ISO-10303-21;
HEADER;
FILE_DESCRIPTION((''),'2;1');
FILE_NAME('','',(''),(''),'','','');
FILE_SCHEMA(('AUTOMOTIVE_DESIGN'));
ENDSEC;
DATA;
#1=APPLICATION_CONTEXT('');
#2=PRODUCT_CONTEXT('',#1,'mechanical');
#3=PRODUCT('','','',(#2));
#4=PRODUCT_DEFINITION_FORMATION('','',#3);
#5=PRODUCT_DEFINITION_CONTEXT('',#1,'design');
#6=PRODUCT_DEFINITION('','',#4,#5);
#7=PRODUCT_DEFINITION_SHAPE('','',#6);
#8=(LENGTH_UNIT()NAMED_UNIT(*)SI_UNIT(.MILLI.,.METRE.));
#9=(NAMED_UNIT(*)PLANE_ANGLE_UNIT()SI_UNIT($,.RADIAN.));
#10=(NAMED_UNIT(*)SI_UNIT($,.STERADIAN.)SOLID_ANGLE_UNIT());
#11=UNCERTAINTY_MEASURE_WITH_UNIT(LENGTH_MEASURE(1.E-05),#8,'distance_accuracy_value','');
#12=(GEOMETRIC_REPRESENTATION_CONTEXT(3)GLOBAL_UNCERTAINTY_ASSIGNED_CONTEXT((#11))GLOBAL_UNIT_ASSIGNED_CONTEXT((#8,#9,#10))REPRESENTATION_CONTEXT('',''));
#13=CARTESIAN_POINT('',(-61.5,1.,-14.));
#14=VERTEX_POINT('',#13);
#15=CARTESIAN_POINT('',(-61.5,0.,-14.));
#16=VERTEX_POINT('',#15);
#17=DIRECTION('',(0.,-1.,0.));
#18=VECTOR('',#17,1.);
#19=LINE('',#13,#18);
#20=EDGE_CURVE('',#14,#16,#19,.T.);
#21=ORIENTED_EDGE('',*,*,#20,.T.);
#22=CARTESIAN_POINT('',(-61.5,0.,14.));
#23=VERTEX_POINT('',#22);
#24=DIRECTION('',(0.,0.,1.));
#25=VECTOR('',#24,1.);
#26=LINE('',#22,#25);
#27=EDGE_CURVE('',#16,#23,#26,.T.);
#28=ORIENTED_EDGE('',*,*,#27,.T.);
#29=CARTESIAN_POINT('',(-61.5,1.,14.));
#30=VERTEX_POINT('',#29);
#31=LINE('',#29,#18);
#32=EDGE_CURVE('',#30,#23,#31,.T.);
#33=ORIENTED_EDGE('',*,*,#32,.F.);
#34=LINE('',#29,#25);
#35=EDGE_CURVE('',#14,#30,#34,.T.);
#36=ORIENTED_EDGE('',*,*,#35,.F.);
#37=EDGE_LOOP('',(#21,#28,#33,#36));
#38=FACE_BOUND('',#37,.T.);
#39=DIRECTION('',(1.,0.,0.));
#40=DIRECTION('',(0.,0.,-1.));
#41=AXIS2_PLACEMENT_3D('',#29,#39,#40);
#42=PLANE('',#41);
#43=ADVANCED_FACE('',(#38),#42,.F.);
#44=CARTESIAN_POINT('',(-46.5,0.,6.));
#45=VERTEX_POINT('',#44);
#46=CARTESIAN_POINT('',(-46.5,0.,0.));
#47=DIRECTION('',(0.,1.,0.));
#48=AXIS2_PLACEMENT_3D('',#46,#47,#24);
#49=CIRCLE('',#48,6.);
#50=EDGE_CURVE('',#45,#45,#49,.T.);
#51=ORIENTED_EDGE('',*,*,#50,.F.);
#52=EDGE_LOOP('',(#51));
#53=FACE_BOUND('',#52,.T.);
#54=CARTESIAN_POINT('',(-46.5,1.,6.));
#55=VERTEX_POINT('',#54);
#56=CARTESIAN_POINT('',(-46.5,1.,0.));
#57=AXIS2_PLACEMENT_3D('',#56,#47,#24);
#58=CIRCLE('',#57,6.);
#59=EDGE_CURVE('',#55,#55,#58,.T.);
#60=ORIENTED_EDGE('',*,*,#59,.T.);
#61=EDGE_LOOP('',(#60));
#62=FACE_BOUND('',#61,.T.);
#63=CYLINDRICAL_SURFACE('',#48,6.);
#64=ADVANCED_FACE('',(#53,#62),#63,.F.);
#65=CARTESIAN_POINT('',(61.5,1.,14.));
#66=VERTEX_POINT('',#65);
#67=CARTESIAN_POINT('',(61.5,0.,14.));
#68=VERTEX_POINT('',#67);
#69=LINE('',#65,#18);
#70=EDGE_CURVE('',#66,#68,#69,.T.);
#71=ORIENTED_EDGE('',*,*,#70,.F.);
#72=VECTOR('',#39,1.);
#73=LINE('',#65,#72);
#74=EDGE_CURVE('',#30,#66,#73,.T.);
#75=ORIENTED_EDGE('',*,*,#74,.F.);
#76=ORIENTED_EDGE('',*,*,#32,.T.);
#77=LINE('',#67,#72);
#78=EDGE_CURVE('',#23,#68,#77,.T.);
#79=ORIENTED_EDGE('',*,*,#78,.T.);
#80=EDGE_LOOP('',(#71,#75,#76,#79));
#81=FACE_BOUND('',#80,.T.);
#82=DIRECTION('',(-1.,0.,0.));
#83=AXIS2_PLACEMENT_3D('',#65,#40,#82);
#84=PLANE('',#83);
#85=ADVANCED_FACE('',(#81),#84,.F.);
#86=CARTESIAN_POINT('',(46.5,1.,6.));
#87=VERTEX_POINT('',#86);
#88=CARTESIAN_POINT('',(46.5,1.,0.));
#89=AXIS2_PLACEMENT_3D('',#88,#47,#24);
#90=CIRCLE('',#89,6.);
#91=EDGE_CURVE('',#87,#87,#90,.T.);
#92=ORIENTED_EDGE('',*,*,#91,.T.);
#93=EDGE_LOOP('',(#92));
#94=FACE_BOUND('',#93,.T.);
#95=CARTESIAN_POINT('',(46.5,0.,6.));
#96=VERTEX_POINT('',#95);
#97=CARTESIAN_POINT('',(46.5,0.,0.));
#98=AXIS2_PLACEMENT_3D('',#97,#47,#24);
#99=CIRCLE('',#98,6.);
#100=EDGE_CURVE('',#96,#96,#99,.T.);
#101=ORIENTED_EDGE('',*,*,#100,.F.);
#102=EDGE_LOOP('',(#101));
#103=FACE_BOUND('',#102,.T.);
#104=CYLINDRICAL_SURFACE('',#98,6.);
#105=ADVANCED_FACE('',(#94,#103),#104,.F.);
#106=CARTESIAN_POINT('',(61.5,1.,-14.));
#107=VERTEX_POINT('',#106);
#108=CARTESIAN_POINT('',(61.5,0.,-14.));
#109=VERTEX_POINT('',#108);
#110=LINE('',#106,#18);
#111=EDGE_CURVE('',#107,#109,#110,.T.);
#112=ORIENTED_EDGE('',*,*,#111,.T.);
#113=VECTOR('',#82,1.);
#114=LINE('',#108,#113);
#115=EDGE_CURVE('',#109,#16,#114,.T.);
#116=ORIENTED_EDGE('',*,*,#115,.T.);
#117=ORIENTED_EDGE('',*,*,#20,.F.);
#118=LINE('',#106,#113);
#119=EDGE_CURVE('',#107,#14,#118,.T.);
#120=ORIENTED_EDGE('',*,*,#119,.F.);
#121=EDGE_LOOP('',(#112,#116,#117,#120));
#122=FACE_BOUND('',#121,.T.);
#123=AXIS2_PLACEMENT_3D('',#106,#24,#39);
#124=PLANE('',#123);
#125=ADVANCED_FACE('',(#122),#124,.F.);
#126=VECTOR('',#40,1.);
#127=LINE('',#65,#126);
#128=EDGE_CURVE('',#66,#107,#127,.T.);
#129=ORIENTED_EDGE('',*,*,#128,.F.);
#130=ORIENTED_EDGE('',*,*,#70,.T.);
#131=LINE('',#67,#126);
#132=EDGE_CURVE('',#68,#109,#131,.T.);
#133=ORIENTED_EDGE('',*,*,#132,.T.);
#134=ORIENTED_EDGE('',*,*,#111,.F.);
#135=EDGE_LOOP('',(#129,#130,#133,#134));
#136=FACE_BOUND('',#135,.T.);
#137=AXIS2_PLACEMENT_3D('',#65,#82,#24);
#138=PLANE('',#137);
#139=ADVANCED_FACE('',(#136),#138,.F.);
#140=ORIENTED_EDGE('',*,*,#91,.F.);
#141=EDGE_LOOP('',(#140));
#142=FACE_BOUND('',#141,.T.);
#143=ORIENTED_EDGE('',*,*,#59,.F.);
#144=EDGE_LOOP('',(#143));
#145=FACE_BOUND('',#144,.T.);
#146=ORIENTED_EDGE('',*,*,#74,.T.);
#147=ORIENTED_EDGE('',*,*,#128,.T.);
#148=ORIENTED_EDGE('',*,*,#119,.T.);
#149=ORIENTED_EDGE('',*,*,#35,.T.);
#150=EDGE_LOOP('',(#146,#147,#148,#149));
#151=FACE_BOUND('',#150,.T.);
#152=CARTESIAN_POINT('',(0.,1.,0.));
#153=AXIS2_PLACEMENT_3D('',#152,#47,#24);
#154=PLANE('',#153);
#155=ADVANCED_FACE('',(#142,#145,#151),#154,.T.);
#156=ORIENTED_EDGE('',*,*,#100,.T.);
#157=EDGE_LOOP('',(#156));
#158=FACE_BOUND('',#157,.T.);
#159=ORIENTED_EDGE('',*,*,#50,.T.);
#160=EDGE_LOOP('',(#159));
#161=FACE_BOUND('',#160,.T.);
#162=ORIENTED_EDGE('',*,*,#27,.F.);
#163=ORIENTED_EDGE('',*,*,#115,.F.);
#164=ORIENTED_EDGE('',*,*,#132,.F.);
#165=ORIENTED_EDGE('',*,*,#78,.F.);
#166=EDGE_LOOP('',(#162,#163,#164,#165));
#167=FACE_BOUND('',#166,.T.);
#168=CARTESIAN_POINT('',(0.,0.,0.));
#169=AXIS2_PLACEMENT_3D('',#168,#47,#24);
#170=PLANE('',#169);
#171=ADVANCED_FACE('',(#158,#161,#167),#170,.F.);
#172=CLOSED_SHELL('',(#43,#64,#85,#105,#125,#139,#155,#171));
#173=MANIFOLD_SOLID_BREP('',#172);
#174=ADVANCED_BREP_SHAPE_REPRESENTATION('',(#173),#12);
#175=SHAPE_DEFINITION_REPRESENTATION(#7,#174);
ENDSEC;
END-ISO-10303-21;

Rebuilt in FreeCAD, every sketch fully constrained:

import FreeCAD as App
import Part
import Sketcher

V = App.Vector


def add_polygon(sketch, points):
    """Adds a closed chain of lines whose ends are joined by coincident constraints."""
    first, n = sketch.GeometryCount, len(points)
    for a, b in zip(points, points[1:] + points[:1]):
        sketch.addGeometry(Part.LineSegment(App.Vector(*a, 0), App.Vector(*b, 0)), False)
    for i in range(n):
        sketch.addConstraint(Sketcher.Constraint("Coincident", first + i, 2, first + (i + 1) % n, 1))

doc = App.newDocument("Part")
body = doc.addObject("PartDesign::Body", "Body")

sketch1 = body.newObject("Sketcher::SketchObject", "Sketch")
sketch1.AttachmentSupport = (doc.getObject("XZ_Plane"), [""])
sketch1.MapMode = "FlatFace"
add_polygon(sketch1, [(-61.5, -14), (-61.5, 14), (61.5, 14), (61.5, -14)])
sketch1.addConstraint(Sketcher.Constraint("Vertical", 0))
sketch1.addConstraint(Sketcher.Constraint("Horizontal", 1))
sketch1.addConstraint(Sketcher.Constraint("Vertical", 2))
sketch1.addConstraint(Sketcher.Constraint("Horizontal", 3))
sketch1.addConstraint(Sketcher.Constraint("Symmetric", 0, 2, 2, 2, -1, 1))
sketch1.addConstraint(Sketcher.Constraint("DistanceX", 1, 1, 1, 2, 123.0))
sketch1.addConstraint(Sketcher.Constraint("DistanceY", 0, 1, 0, 2, 28.0))
pad1 = body.newObject("PartDesign::Pad", "Pad")
pad1.Profile = sketch1
pad1.Length = 1
pad1.Reversed = True

sketch2 = body.newObject("Sketcher::SketchObject", "Sketch001")
sketch2.AttachmentSupport = (doc.getObject("XZ_Plane"), [""])
sketch2.MapMode = "FlatFace"
sketch2.AttachmentOffset = App.Placement(V(0, 0, -1), App.Rotation())
sketch2.addGeometry(Part.Circle(V(46.5, 0, 0), V(0, 0, 1), 6), False)
sketch2.addGeometry(Part.Circle(V(-46.5, 0, 0), V(0, 0, 1), 6), False)
sketch2.addConstraint(Sketcher.Constraint("Equal", 0, 1))
sketch2.addConstraint(Sketcher.Constraint("Symmetric", 0, 3, 1, 3, -1, 1))
sketch2.addConstraint(Sketcher.Constraint("PointOnObject", 0, 3, -1))
sketch2.addConstraint(Sketcher.Constraint("Diameter", 0, 12.0))
sketch2.addConstraint(Sketcher.Constraint("DistanceX", 1, 3, 0, 3, 93.0))
pocket1 = body.newObject("PartDesign::Pocket", "Pocket")
pocket1.Profile = sketch2
pocket1.Type = "ThroughAll"
pocket1.Reversed = True

doc.recompute()
